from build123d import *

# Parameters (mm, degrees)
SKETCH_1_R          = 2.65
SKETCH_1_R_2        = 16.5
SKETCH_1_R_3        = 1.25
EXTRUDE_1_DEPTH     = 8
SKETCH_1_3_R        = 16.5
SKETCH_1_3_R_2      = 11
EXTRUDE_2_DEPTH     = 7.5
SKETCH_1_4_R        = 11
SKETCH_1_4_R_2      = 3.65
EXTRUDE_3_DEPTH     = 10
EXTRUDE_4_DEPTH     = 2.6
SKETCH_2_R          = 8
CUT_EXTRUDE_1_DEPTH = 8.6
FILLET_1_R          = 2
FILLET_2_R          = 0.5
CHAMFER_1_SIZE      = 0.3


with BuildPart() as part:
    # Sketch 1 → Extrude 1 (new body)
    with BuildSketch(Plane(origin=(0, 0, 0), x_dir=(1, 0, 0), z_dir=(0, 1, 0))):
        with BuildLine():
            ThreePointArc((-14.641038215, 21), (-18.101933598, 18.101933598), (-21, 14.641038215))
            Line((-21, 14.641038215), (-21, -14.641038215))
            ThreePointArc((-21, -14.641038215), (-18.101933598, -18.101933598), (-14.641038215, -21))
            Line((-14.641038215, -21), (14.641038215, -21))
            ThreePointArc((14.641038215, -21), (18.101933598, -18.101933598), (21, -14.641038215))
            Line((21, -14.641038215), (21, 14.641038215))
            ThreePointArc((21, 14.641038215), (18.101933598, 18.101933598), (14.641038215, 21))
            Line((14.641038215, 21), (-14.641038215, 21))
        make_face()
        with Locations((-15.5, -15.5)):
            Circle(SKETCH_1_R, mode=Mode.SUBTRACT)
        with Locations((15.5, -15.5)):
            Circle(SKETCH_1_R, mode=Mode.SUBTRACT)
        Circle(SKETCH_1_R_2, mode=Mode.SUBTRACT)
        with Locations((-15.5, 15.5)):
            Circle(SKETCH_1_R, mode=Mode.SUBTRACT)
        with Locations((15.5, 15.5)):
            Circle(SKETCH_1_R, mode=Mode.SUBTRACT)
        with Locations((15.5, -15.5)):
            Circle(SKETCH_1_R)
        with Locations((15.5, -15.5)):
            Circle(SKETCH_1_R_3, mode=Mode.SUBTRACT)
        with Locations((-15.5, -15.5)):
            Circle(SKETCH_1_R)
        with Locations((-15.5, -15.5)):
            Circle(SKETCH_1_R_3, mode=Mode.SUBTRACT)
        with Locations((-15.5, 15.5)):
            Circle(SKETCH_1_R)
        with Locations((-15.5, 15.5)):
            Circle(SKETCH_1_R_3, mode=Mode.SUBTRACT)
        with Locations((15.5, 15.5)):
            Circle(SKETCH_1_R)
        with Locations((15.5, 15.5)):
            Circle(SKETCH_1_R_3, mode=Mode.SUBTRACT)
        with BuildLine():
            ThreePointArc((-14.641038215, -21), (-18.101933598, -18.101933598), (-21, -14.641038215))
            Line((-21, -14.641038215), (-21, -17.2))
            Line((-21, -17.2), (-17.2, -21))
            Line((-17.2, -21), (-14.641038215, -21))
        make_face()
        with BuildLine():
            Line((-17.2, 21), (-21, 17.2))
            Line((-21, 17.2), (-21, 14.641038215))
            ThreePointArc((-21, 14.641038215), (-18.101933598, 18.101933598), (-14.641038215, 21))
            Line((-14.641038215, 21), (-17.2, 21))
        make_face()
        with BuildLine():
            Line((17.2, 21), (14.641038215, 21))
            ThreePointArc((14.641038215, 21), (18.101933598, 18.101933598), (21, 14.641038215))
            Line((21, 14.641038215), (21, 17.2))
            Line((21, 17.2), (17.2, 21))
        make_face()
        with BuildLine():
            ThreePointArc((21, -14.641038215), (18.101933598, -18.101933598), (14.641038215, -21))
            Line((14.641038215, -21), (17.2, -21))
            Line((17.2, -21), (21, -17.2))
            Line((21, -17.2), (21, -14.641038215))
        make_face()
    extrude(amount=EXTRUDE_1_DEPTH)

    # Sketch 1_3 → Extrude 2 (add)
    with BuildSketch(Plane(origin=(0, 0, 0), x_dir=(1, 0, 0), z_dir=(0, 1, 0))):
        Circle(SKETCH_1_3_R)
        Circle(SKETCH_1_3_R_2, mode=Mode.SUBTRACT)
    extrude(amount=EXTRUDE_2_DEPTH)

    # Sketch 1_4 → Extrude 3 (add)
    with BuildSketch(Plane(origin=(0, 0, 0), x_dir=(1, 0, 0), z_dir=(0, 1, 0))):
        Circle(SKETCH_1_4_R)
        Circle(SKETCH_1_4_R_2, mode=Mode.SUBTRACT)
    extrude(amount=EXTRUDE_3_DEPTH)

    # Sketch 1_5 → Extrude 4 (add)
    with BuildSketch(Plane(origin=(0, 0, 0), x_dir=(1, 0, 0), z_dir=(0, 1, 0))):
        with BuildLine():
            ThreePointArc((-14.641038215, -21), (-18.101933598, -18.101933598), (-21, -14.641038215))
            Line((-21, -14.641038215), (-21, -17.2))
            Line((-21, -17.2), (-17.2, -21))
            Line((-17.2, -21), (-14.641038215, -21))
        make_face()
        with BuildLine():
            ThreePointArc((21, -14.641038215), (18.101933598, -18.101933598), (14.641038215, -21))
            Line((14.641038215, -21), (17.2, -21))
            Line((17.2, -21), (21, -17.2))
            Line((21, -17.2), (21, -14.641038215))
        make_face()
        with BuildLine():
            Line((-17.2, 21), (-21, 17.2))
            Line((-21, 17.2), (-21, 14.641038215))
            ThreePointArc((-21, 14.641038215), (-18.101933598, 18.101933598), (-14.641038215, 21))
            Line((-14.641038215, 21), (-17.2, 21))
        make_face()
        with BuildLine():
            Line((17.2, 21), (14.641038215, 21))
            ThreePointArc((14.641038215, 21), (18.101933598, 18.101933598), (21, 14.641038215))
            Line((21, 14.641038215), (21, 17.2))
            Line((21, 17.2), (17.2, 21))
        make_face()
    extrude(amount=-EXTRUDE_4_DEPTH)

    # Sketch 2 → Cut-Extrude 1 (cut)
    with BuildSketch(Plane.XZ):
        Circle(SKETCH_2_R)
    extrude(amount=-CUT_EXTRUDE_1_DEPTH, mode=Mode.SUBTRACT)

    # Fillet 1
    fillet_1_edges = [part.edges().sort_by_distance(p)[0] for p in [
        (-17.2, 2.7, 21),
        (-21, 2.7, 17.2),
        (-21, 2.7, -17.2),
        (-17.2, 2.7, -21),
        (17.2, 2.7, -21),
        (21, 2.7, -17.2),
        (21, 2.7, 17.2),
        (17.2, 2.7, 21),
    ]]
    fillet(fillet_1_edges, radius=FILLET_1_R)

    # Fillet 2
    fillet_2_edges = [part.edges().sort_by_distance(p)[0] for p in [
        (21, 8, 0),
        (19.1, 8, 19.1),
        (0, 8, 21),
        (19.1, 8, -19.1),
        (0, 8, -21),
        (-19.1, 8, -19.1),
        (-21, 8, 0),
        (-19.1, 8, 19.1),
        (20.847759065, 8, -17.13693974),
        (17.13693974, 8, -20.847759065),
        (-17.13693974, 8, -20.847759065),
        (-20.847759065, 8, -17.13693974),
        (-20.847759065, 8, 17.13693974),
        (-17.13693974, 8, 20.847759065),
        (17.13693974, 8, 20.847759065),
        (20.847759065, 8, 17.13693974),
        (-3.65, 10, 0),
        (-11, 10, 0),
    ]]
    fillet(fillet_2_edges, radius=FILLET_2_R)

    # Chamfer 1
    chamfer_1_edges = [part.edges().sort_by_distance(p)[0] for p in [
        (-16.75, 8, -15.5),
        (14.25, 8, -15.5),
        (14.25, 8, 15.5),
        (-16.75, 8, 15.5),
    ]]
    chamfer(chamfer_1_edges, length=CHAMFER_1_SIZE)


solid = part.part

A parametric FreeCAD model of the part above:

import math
import FreeCAD as App
import Part
import Sketcher

V = App.Vector
Q = App.Units.Quantity


def edges_at(feature, points):
    """Names of the edges that pass closest to the given points."""
    edges = feature.Shape.Edges
    near = lambda p: min(range(len(edges)), key=lambda i: edges[i].distToShape(Part.Vertex(*p))[0])
    return sorted({f"Edge{near(p) + 1}" for p in points})

doc = App.newDocument("Part")
params = doc.addObject("Spreadsheet::Sheet", "Params")
for row, (alias, value) in enumerate([
    ("sketch1_diameter", "33 mm"),
    ("sketch1_diameter2", "2.5 mm"),
    ("sketch1_width", "34.4 mm"),
    ("pad1_length", "8 mm"),
    ("sketch2_diameter", "33 mm"),
    ("sketch2_diameter2", "22 mm"),
    ("pad2_length", "7.5 mm"),
    ("sketch3_diameter", "22 mm"),
    ("sketch3_diameter2", "7.3 mm"),
    ("pad3_length", "10 mm"),
    ("sketch4_radius", "25.6 mm"),
    ("pad4_length", "2.6 mm"),
    ("sketch5_diameter", "16 mm"),
    ("pocket1_length", "8.6 mm"),
    ("fillet_radius", "2 mm"),
    ("fillet2_radius", "0.5 mm"),
    ("chamfer_size", "0.3 mm"),
], start=1):
    params.set(f"A{row}", alias)
    params.set(f"B{row}", "=" + value)
    params.setAlias(f"B{row}", alias)

body = doc.addObject("PartDesign::Body", "Body")

sketch1 = body.newObject("Sketcher::SketchObject", "Sketch")
sketch1.AttachmentSupport = (doc.getObject("XZ_Plane"), [""])
sketch1.MapMode = "FlatFace"
sketch1.addGeometry([
    Part.LineSegment(V(-21, 17.2, 0), V(-17.2, 21, 0)),
    Part.LineSegment(V(-17.2, 21, 0), V(17.2, 21, 0)),
    Part.LineSegment(V(17.2, 21, 0), V(21, 17.2, 0)),
    Part.LineSegment(V(21, 17.2, 0), V(21, -17.2, 0)),
    Part.LineSegment(V(21, -17.2, 0), V(17.2, -21, 0)),
    Part.LineSegment(V(17.2, -21, 0), V(-17.2, -21, 0)),
    Part.LineSegment(V(-17.2, -21, 0), V(-21, -17.2, 0)),
    Part.LineSegment(V(-21, -17.2, 0), V(-21, 17.2, 0)),
    Part.Circle(V(-15.5, 15.5, 0), V(0, 0, 1), 1.25),
    Part.Circle(V(15.5, 15.5, 0), V(0, 0, 1), 1.25),
    Part.Circle(V(-15.5, -15.5, 0), V(0, 0, 1), 1.25),
    Part.Circle(V(0, 0, 0), V(0, 0, 1), 16.5),
    Part.Circle(V(15.5, -15.5, 0), V(0, 0, 1), 1.25),
], False)
sketch1.addConstraint([
    Sketcher.Constraint("Coincident", 0, 2, 1, 1),
    Sketcher.Constraint("Coincident", 1, 2, 2, 1),
    Sketcher.Constraint("Coincident", 2, 2, 3, 1),
    Sketcher.Constraint("Coincident", 3, 2, 4, 1),
    Sketcher.Constraint("Coincident", 4, 2, 5, 1),
    Sketcher.Constraint("Coincident", 5, 2, 6, 1),
    Sketcher.Constraint("Coincident", 6, 2, 7, 1),
    Sketcher.Constraint("Coincident", 7, 2, 0, 1),
    Sketcher.Constraint("Horizontal", 1),
    Sketcher.Constraint("Vertical", 3),
    Sketcher.Constraint("Horizontal", 5),
    Sketcher.Constraint("Vertical", 7),
    Sketcher.Constraint("Coincident", 11, 3, -1, 1),
    Sketcher.Constraint("Equal", 8, 9),
    Sketcher.Constraint("Equal", 9, 10),
    Sketcher.Constraint("Equal", 10, 12),
    Sketcher.Constraint("Symmetric", 9, 3, 10, 3, -1, 1),
    Sketcher.Constraint("Symmetric", 8, 3, 12, 3, -1, 1),
    Sketcher.Constraint("Symmetric", 0, 2, 4, 2, -1, 1),
    Sketcher.Constraint("Symmetric", 2, 2, 6, 2, -1, 1),
    Sketcher.Constraint("Symmetric", 8, 3, 9, 3, -2),
    Sketcher.Constraint("Perpendicular", 0, 2),
    Sketcher.Constraint("Perpendicular", 2, 4),
    Sketcher.Constraint("Perpendicular", 4, 6),
    Sketcher.Constraint("Horizontal", 3, 2, 6, 2),
    Sketcher.Constraint("Vertical", 1, 2, 4, 2),
    Sketcher.Constraint("Equal", 5, 3),
    Sketcher.Constraint("Diameter", 11, Q("33 mm")),
    Sketcher.Constraint("Diameter", 8, Q("2.5 mm")),
    Sketcher.Constraint("DistanceX", 1, 1, 1, 2, Q("34.4 mm")),
    Sketcher.Constraint("DistanceY", -1, 1, 0, 2, Q("21 mm")),
    Sketcher.Constraint("DistanceX", 8, 3, 9, 3, Q("31 mm")),
    Sketcher.Constraint("DistanceY", 10, 3, 8, 3, Q("31 mm")),
])
sketch1.setExpression("Constraints[27]", "Params.sketch1_diameter")
sketch1.setExpression("Constraints[28]", "Params.sketch1_diameter2")
sketch1.setExpression("Constraints[29]", "Params.sketch1_width")
pad1 = body.newObject("PartDesign::Pad", "Pad")
pad1.Profile = sketch1
pad1.setExpression("Length", "Params.pad1_length")
pad1.Reversed = True

sketch2 = body.newObject("Sketcher::SketchObject", "Sketch001")
sketch2.AttachmentSupport = (doc.getObject("XZ_Plane"), [""])
sketch2.MapMode = "FlatFace"
sketch2.addGeometry([
    Part.Circle(V(0, 0, 0), V(0, 0, 1), 16.5),
    Part.Circle(V(0, 0, 0), V(0, 0, 1), 11),
], False)
sketch2.addConstraint([
    Sketcher.Constraint("Coincident", 0, 3, -1, 1),
    Sketcher.Constraint("Coincident", 1, 3, -1, 1),
    Sketcher.Constraint("Diameter", 0, Q("33 mm")),
    Sketcher.Constraint("Diameter", 1, Q("22 mm")),
])
sketch2.setExpression("Constraints[2]", "Params.sketch2_diameter")
sketch2.setExpression("Constraints[3]", "Params.sketch2_diameter2")
pad2 = body.newObject("PartDesign::Pad", "Pad001")
pad2.Profile = sketch2
pad2.setExpression("Length", "Params.pad2_length")
pad2.Reversed = True

sketch3 = body.newObject("Sketcher::SketchObject", "Sketch002")
sketch3.AttachmentSupport = (doc.getObject("XZ_Plane"), [""])
sketch3.MapMode = "FlatFace"
sketch3.addGeometry([
    Part.Circle(V(0, 0, 0), V(0, 0, 1), 11),
    Part.Circle(V(0, 0, 0), V(0, 0, 1), 3.65),
], False)
sketch3.addConstraint([
    Sketcher.Constraint("Coincident", 0, 3, -1, 1),
    Sketcher.Constraint("Coincident", 1, 3, -1, 1),
    Sketcher.Constraint("Diameter", 0, Q("22 mm")),
    Sketcher.Constraint("Diameter", 1, Q("7.3 mm")),
])
sketch3.setExpression("Constraints[2]", "Params.sketch3_diameter")
sketch3.setExpression("Constraints[3]", "Params.sketch3_diameter2")
pad3 = body.newObject("PartDesign::Pad", "Pad002")
pad3.Profile = sketch3
pad3.setExpression("Length", "Params.pad3_length")
pad3.Reversed = True

sketch4 = body.newObject("Sketcher::SketchObject", "Sketch003")
sketch4.AttachmentSupport = (doc.getObject("XZ_Plane"), [""])
sketch4.MapMode = "FlatFace"
sketch4.addGeometry([
    Part.ArcOfCircle(Part.Circle(V(0, 0, 0), V(0, 0, 1), 25.6), math.radians(124.883912), math.radians(145.116088)),
    Part.LineSegment(V(-21, 14.641038, 0), V(-21, 17.2, 0)),
    Part.LineSegment(V(-21, 17.2, 0), V(-17.2, 21, 0)),
    Part.LineSegment(V(-17.2, 21, 0), V(-14.641038, 21, 0)),
    Part.ArcOfCircle(Part.Circle(V(0, 0, 0), V(0, 0, 1), 25.6), math.radians(34.883912), math.radians(55.116088)),
    Part.LineSegment(V(14.641038, 21, 0), V(17.2, 21, 0)),
    Part.LineSegment(V(17.2, 21, 0), V(21, 17.2, 0)),
    Part.LineSegment(V(21, 17.2, 0), V(21, 14.641038, 0)),
    Part.LineSegment(V(-17.2, -21, 0), V(-21, -17.2, 0)),
    Part.LineSegment(V(-21, -17.2, 0), V(-21, -14.641038, 0)),
    Part.ArcOfCircle(Part.Circle(V(0, 0, 0), V(0, 0, 1), 25.6), math.radians(-145.116088), math.radians(-124.883912)),
    Part.LineSegment(V(-14.641038, -21, 0), V(-17.2, -21, 0)),
    Part.LineSegment(V(17.2, -21, 0), V(14.641038, -21, 0)),
    Part.ArcOfCircle(Part.Circle(V(0, 0, 0), V(0, 0, 1), 25.6), math.radians(-55.116088), math.radians(-34.883912)),
    Part.LineSegment(V(21, -14.641038, 0), V(21, -17.2, 0)),
    Part.LineSegment(V(21, -17.2, 0), V(17.2, -21, 0)),
], False)
sketch4.addConstraint([
    Sketcher.Constraint("Coincident", 0, 2, 1, 1),
    Sketcher.Constraint("Coincident", 1, 2, 2, 1),
    Sketcher.Constraint("Coincident", 2, 2, 3, 1),
    Sketcher.Constraint("Coincident", 3, 2, 0, 1),
    Sketcher.Constraint("Coincident", 4, 2, 5, 1),
    Sketcher.Constraint("Coincident", 5, 2, 6, 1),
    Sketcher.Constraint("Coincident", 6, 2, 7, 1),
    Sketcher.Constraint("Coincident", 7, 2, 4, 1),
    Sketcher.Constraint("Coincident", 8, 2, 9, 1),
    Sketcher.Constraint("Coincident", 9, 2, 10, 1),
    Sketcher.Constraint("Coincident", 10, 2, 11, 1),
    Sketcher.Constraint("Coincident", 11, 2, 8, 1),
    Sketcher.Constraint("Coincident", 12, 2, 13, 1),
    Sketcher.Constraint("Coincident", 13, 2, 14, 1),
    Sketcher.Constraint("Coincident", 14, 2, 15, 1),
    Sketcher.Constraint("Coincident", 15, 2, 12, 1),
    Sketcher.Constraint("Vertical", 1),
    Sketcher.Constraint("Horizontal", 3),
    Sketcher.Constraint("Horizontal", 5),
    Sketcher.Constraint("Vertical", 7),
    Sketcher.Constraint("Vertical", 9),
    Sketcher.Constraint("Horizontal", 11),
    Sketcher.Constraint("Horizontal", 12),
    Sketcher.Constraint("Vertical", 14),
    Sketcher.Constraint("Coincident", 0, 3, -1, 1),
    Sketcher.Constraint("Coincident", 4, 3, -1, 1),
    Sketcher.Constraint("Coincident", 10, 3, -1, 1),
    Sketcher.Constraint("Coincident", 13, 3, -1, 1),
    Sketcher.Constraint("Equal", 0, 4),
    Sketcher.Constraint("Equal", 4, 10),
    Sketcher.Constraint("Equal", 10, 13),
    Sketcher.Constraint("Symmetric", 6, 2, 8, 2, -1, 1),
    Sketcher.Constraint("Symmetric", 5, 2, 11, 2, -1, 1),
    Sketcher.Constraint("Symmetric", 1, 2, 14, 2, -1, 1),
    Sketcher.Constraint("Symmetric", 2, 2, 15, 2, -1, 1),
    Sketcher.Constraint("Symmetric", 2, 2, 5, 2, -2),
    Sketcher.Constraint("Symmetric", 1, 2, 6, 2, -2),
    Sketcher.Constraint("Perpendicular", 2, 6),
    Sketcher.Constraint("Equal", 12, 1),
    Sketcher.Constraint("Radius", 0, Q("25.6 mm")),
    Sketcher.Constraint("DistanceX", 0, 2, -1, 1, Q("21 mm")),
    Sketcher.Constraint("DistanceY", -1, 1, 1, 2, Q("17.2 mm")),
])
sketch4.setExpression("Constraints[39]", "Params.sketch4_radius")
pad4 = body.newObject("PartDesign::Pad", "Pad003")
pad4.Profile = sketch4
pad4.setExpression("Length", "Params.pad4_length")

sketch5 = body.newObject("Sketcher::SketchObject", "Sketch004")
sketch5.AttachmentSupport = (doc.getObject("XZ_Plane"), [""])
sketch5.MapMode = "FlatFace"
sketch5.addGeometry(Part.Circle(V(0, 0, 0), V(0, 0, 1), 8), False)
sketch5.addConstraint([
    Sketcher.Constraint("Coincident", 0, 3, -1, 1),
    Sketcher.Constraint("Diameter", 0, Q("16 mm")),
])
sketch5.setExpression("Constraints[1]", "Params.sketch5_diameter")
pocket1 = body.newObject("PartDesign::Pocket", "Pocket")
pocket1.Profile = sketch5
pocket1.setExpression("Length", "Params.pocket1_length")
doc.recompute()

fillet = body.newObject("PartDesign::Fillet", "Fillet")
fillet.Base = (pocket1, edges_at(pocket1, [
    (-17.2, 2.7, 21),
    (-21, 2.7, 17.2),
    (-21, 2.7, -17.2),
    (-17.2, 2.7, -21),
    (17.2, 2.7, -21),
    (21, 2.7, -17.2),
    (21, 2.7, 17.2),
    (17.2, 2.7, 21),
]))
fillet.setExpression("Radius", "Params.fillet_radius")
doc.recompute()

fillet2 = body.newObject("PartDesign::Fillet", "Fillet001")
fillet2.Base = (fillet, edges_at(fillet, [
    (21, 8, 0),
    (19.1, 8, 19.1),
    (0, 8, 21),
    (19.1, 8, -19.1),
    (0, 8, -21),
    (-19.1, 8, -19.1),
    (-21, 8, 0),
    (-19.1, 8, 19.1),
    (20.848, 8, -17.137),
    (17.137, 8, -20.848),
    (-17.137, 8, -20.848),
    (-20.848, 8, -17.137),
    (-20.848, 8, 17.137),
    (-17.137, 8, 20.848),
    (17.137, 8, 20.848),
    (20.848, 8, 17.137),
    (-3.65, 10, 0),
    (-11, 10, 0),
]))
fillet2.setExpression("Radius", "Params.fillet2_radius")
doc.recompute()

chamfer = body.newObject("PartDesign::Chamfer", "Chamfer")
chamfer.Base = (fillet2, edges_at(fillet2, [
    (-16.75, 8, -15.5),
    (14.25, 8, -15.5),
    (14.25, 8, 15.5),
    (-16.75, 8, 15.5),
]))
chamfer.setExpression("Size", "Params.chamfer_size")

doc.recompute()
